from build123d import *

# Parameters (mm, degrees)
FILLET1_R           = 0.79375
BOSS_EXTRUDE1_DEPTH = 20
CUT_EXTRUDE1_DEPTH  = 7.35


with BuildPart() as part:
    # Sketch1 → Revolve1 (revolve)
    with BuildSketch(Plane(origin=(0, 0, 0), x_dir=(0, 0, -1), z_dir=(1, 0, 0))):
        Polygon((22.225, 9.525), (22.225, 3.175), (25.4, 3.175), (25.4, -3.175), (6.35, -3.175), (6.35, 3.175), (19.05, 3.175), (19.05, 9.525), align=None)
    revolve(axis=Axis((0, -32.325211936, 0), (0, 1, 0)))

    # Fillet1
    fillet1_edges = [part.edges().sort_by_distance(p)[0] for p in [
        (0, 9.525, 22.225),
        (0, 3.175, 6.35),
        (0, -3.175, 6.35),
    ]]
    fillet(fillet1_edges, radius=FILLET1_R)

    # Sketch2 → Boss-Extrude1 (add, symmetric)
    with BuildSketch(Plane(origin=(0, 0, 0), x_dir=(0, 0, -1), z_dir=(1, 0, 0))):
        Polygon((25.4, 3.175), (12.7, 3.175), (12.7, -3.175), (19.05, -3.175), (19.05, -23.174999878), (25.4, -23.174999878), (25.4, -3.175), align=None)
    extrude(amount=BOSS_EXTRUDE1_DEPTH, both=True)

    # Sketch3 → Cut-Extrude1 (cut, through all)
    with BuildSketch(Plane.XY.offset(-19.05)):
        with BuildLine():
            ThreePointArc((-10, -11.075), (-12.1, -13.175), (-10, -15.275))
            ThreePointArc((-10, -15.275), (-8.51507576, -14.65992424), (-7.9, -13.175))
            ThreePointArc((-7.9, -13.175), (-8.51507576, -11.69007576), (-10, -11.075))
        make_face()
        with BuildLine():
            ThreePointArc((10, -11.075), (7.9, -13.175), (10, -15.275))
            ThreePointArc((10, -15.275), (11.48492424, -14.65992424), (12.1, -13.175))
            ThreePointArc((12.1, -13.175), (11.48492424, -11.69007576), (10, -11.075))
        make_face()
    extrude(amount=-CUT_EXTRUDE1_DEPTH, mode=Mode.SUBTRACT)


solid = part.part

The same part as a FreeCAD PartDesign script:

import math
import FreeCAD as App
import Part
import Sketcher

V = App.Vector
Q = App.Units.Quantity


def edges_at(feature, points):
    """Names of the edges that pass closest to the given points."""
    edges = feature.Shape.Edges
    near = lambda p: min(range(len(edges)), key=lambda i: edges[i].distToShape(Part.Vertex(*p))[0])
    return sorted({f"Edge{near(p) + 1}" for p in points})


def add_polygon(sketch, points):
    """Adds a closed chain of lines whose ends are joined by coincident constraints."""
    first, n = sketch.GeometryCount, len(points)
    for a, b in zip(points, points[1:] + points[:1]):
        sketch.addGeometry(Part.LineSegment(App.Vector(*a, 0), App.Vector(*b, 0)), False)
    for i in range(n):
        sketch.addConstraint(Sketcher.Constraint("Coincident", first + i, 2, first + (i + 1) % n, 1))

doc = App.newDocument("Part")
body = doc.addObject("PartDesign::Body", "Body")

# Sketch on YZ plane
sketch1 = body.newObject("Sketcher::SketchObject", "Sketch")
sketch1.AttachmentSupport = (doc.getObject("YZ_Plane"), [""])
sketch1.MapMode = "FlatFace"
add_polygon(sketch1, [(3.2, -22.2), (9.5, -22.2), (9.5, -19.1), (3.2, -19.1), (3.2, -6.3), (-3.2, -6.3), (-3.2, -25.4), (3.2, -25.4)])  # lines 0-7
sketch1.addConstraint([
    Sketcher.Constraint("Horizontal", 0),
    Sketcher.Constraint("Vertical", 1),
    Sketcher.Constraint("Horizontal", 2),
    Sketcher.Constraint("Vertical", 3),
    Sketcher.Constraint("Horizontal", 4),
    Sketcher.Constraint("Vertical", 5),
    Sketcher.Constraint("Horizontal", 6),
    Sketcher.Constraint("Vertical", 7),
    Sketcher.Constraint("Vertical", 3, 2, 6, 2),
    Sketcher.Constraint("Equal", 2, 4),
    Sketcher.Constraint("Equal", 1, 7),
    Sketcher.Constraint("DistanceY", 3, 1, 3, 2, Q("0.5 in")),
    Sketcher.Constraint("DistanceY", 5, 2, -1, 1, Q("1 in")),
    Sketcher.Constraint("DistanceX", 0, 1, 0, 2, Q("0.25 in")),
    Sketcher.Constraint("DistanceY", 5, 2, 5, 1, Q("0.75 in")),
    Sketcher.Constraint("DistanceX", -1, 1, 0, 2, Q("0.375 in")),
])
revolution = body.newObject("PartDesign::Revolution", "Revolution")
revolution.Profile = sketch1
revolution.ReferenceAxis = (sketch1, ["H_Axis"])
revolution.Angle = 360
doc.recompute()

fillet = body.newObject("PartDesign::Fillet", "Fillet")
fillet.Base = (revolution, edges_at(revolution, [(0, 9.525, 22.225), (0, 3.175, 6.35), (0, -3.175, 6.35)]))
fillet.Radius = Q("0.03125 in")

# Sketch on YZ plane
sketch2 = body.newObject("Sketcher::SketchObject", "Sketch001")
sketch2.AttachmentSupport = (doc.getObject("YZ_Plane"), [""])
sketch2.MapMode = "FlatFace"
add_polygon(sketch2, [(3, -25), (3, -13), (-3, -13), (-3, -19), (-23, -19), (-23, -25)])  # lines 0-5
sketch2.addConstraint([
    Sketcher.Constraint("Vertical", 0),
    Sketcher.Constraint("Horizontal", 1),
    Sketcher.Constraint("Vertical", 2),
    Sketcher.Constraint("Horizontal", 3),
    Sketcher.Constraint("Vertical", 4),
    Sketcher.Constraint("Horizontal", 5),
    Sketcher.Constraint("Equal", 1, 2),
    Sketcher.Constraint("Equal", 2, 4),
    Sketcher.Constraint("DistanceY", 0, 1, 0, 2, Q("0.5 in")),
    Sketcher.Constraint("DistanceY", 4, 2, -1, 1, Q("1 in")),
    Sketcher.Constraint("DistanceX", -1, 1, 0, 2, Q("0.125 in")),
    Sketcher.Constraint("DistanceX", 3, 2, 3, 1, 20.0),
])
pad1 = body.newObject("PartDesign::Pad", "Pad")
pad1.Profile = sketch2
pad1.Length = 40
pad1.Midplane = True

# Sketch on XY plane
sketch3 = body.newObject("Sketcher::SketchObject", "Sketch002")
sketch3.AttachmentSupport = (doc.getObject("XY_Plane"), [""])
sketch3.MapMode = "FlatFace"
sketch3.AttachmentOffset = App.Placement(V(0, 0, -0.75 * 25.4), App.Rotation())
sketch3.addGeometry([
    Part.ArcOfCircle(Part.Circle(V(-10, -13.2, 0), V(0, 0, 1), 2.1), math.radians(90), math.radians(270)),  # 0
    Part.ArcOfCircle(Part.Circle(V(-10, -13.2, 0), V(0, 0, 1), 2.1), math.radians(-90), math.radians(0)),  # 1
    Part.ArcOfCircle(Part.Circle(V(-10, -13.2, 0), V(0, 0, 1), 2.1), math.radians(0), math.radians(90)),  # 2
    Part.ArcOfCircle(Part.Circle(V(10, -13.2, 0), V(0, 0, 1), 2.1), math.radians(90), math.radians(270)),  # 3
    Part.ArcOfCircle(Part.Circle(V(10, -13.2, 0), V(0, 0, 1), 2.1), math.radians(-90), math.radians(0)),  # 4
    Part.ArcOfCircle(Part.Circle(V(10, -13.2, 0), V(0, 0, 1), 2.1), math.radians(0), math.radians(90)),  # 5
], False)
sketch3.addConstraint([
    Sketcher.Constraint("Tangent", 0, 2, 1, 1),
    Sketcher.Constraint("Tangent", 1, 2, 2, 1),
    Sketcher.Constraint("Tangent", 2, 2, 0, 1),
    Sketcher.Constraint("Tangent", 3, 2, 4, 1),
    Sketcher.Constraint("Tangent", 4, 2, 5, 1),
    Sketcher.Constraint("Tangent", 5, 2, 3, 1),
    Sketcher.Constraint("Equal", 2, 3),
    Sketcher.Constraint("Symmetric", 0, 3, 3, 3, -2),
    Sketcher.Constraint("Horizontal", 5, 3, 1, 2),
    Sketcher.Constraint("Horizontal", 1, 2, 4, 2),
    Sketcher.Constraint("Vertical", 2, 3, 0, 2),
    Sketcher.Constraint("Vertical", 0, 2, 2, 2),
    Sketcher.Constraint("Vertical", 5, 3, 3, 2),
    Sketcher.Constraint("Vertical", 3, 2, 5, 2),
    Sketcher.Constraint("Radius", 0, 2.1),
    Sketcher.Constraint("DistanceX", 0, 3, -1, 1, 10.0),
    Sketcher.Constraint("DistanceY", 0, 3, -1, 1, 13.175),
])
pocket1 = body.newObject("PartDesign::Pocket", "Pocket")
pocket1.Profile = sketch3
pocket1.Type = "ThroughAll"

doc.recompute()
